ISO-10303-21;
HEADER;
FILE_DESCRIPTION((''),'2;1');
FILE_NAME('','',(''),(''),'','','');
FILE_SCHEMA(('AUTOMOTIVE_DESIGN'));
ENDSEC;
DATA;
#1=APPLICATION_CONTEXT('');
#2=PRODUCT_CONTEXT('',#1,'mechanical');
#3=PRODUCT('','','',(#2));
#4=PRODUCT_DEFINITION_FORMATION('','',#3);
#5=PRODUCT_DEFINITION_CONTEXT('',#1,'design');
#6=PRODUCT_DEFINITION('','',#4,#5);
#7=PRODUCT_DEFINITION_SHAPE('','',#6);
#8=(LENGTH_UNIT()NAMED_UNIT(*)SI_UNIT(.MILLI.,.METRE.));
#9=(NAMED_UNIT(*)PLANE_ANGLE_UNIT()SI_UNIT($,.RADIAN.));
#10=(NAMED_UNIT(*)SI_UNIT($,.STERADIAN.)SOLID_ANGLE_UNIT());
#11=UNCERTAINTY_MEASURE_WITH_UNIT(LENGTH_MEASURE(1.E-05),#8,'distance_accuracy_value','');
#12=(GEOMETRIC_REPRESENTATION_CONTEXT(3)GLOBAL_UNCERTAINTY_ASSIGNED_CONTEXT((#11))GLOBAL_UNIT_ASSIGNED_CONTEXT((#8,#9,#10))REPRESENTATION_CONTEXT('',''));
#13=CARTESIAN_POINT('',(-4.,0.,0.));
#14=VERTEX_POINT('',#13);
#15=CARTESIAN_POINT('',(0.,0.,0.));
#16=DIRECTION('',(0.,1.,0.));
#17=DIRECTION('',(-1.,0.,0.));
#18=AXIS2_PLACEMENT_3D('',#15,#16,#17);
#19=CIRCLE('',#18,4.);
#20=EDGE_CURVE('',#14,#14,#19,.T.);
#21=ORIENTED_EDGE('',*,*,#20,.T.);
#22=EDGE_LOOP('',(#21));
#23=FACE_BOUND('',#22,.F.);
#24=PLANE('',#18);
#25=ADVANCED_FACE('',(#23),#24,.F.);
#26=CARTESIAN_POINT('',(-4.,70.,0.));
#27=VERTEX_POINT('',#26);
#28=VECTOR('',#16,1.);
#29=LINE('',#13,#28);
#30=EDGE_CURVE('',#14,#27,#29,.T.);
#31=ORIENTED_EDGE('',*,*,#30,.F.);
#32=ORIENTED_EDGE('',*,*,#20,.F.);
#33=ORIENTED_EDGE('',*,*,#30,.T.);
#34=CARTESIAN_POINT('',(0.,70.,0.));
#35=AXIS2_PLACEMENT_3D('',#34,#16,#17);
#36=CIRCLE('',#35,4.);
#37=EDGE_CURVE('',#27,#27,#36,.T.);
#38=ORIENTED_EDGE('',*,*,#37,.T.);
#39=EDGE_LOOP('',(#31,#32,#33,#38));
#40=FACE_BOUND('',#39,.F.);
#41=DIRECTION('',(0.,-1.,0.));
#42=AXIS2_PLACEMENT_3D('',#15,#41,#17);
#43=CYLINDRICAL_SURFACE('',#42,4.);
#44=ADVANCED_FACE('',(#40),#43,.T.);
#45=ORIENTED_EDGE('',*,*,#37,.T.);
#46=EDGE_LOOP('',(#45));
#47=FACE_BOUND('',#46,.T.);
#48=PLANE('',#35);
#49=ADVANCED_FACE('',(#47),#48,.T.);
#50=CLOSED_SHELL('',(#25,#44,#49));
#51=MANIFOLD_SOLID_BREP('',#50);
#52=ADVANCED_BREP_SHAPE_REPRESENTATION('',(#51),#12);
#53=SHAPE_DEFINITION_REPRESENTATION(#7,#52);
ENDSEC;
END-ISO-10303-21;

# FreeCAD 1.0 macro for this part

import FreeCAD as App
import Part
import Sketcher

V = App.Vector
Q = App.Units.Quantity

doc = App.newDocument("Part")
body = doc.addObject("PartDesign::Body", "Body")

sketch1 = doc.addObject("Sketcher::SketchObject", "Sketch")
body.addObject(sketch1)
sketch1.AttachmentSupport = (doc.XZ_Plane, [""])
sketch1.MapMode = "FlatFace"
sketch1.addGeometry(Part.Circle(V(0, 0, 0), V(0, 0, 1), 4), False)
sketch1.addConstraint([
    Sketcher.Constraint("Coincident", 0, 3, -1, 1),
    Sketcher.Constraint("Diameter", 0, Q("8 mm")),
])
pad1 = doc.addObject("PartDesign::Pad", "Pad")
body.addObject(pad1)
pad1.Profile = sketch1
pad1.Length = 70
pad1.Reversed = True

doc.recompute()
